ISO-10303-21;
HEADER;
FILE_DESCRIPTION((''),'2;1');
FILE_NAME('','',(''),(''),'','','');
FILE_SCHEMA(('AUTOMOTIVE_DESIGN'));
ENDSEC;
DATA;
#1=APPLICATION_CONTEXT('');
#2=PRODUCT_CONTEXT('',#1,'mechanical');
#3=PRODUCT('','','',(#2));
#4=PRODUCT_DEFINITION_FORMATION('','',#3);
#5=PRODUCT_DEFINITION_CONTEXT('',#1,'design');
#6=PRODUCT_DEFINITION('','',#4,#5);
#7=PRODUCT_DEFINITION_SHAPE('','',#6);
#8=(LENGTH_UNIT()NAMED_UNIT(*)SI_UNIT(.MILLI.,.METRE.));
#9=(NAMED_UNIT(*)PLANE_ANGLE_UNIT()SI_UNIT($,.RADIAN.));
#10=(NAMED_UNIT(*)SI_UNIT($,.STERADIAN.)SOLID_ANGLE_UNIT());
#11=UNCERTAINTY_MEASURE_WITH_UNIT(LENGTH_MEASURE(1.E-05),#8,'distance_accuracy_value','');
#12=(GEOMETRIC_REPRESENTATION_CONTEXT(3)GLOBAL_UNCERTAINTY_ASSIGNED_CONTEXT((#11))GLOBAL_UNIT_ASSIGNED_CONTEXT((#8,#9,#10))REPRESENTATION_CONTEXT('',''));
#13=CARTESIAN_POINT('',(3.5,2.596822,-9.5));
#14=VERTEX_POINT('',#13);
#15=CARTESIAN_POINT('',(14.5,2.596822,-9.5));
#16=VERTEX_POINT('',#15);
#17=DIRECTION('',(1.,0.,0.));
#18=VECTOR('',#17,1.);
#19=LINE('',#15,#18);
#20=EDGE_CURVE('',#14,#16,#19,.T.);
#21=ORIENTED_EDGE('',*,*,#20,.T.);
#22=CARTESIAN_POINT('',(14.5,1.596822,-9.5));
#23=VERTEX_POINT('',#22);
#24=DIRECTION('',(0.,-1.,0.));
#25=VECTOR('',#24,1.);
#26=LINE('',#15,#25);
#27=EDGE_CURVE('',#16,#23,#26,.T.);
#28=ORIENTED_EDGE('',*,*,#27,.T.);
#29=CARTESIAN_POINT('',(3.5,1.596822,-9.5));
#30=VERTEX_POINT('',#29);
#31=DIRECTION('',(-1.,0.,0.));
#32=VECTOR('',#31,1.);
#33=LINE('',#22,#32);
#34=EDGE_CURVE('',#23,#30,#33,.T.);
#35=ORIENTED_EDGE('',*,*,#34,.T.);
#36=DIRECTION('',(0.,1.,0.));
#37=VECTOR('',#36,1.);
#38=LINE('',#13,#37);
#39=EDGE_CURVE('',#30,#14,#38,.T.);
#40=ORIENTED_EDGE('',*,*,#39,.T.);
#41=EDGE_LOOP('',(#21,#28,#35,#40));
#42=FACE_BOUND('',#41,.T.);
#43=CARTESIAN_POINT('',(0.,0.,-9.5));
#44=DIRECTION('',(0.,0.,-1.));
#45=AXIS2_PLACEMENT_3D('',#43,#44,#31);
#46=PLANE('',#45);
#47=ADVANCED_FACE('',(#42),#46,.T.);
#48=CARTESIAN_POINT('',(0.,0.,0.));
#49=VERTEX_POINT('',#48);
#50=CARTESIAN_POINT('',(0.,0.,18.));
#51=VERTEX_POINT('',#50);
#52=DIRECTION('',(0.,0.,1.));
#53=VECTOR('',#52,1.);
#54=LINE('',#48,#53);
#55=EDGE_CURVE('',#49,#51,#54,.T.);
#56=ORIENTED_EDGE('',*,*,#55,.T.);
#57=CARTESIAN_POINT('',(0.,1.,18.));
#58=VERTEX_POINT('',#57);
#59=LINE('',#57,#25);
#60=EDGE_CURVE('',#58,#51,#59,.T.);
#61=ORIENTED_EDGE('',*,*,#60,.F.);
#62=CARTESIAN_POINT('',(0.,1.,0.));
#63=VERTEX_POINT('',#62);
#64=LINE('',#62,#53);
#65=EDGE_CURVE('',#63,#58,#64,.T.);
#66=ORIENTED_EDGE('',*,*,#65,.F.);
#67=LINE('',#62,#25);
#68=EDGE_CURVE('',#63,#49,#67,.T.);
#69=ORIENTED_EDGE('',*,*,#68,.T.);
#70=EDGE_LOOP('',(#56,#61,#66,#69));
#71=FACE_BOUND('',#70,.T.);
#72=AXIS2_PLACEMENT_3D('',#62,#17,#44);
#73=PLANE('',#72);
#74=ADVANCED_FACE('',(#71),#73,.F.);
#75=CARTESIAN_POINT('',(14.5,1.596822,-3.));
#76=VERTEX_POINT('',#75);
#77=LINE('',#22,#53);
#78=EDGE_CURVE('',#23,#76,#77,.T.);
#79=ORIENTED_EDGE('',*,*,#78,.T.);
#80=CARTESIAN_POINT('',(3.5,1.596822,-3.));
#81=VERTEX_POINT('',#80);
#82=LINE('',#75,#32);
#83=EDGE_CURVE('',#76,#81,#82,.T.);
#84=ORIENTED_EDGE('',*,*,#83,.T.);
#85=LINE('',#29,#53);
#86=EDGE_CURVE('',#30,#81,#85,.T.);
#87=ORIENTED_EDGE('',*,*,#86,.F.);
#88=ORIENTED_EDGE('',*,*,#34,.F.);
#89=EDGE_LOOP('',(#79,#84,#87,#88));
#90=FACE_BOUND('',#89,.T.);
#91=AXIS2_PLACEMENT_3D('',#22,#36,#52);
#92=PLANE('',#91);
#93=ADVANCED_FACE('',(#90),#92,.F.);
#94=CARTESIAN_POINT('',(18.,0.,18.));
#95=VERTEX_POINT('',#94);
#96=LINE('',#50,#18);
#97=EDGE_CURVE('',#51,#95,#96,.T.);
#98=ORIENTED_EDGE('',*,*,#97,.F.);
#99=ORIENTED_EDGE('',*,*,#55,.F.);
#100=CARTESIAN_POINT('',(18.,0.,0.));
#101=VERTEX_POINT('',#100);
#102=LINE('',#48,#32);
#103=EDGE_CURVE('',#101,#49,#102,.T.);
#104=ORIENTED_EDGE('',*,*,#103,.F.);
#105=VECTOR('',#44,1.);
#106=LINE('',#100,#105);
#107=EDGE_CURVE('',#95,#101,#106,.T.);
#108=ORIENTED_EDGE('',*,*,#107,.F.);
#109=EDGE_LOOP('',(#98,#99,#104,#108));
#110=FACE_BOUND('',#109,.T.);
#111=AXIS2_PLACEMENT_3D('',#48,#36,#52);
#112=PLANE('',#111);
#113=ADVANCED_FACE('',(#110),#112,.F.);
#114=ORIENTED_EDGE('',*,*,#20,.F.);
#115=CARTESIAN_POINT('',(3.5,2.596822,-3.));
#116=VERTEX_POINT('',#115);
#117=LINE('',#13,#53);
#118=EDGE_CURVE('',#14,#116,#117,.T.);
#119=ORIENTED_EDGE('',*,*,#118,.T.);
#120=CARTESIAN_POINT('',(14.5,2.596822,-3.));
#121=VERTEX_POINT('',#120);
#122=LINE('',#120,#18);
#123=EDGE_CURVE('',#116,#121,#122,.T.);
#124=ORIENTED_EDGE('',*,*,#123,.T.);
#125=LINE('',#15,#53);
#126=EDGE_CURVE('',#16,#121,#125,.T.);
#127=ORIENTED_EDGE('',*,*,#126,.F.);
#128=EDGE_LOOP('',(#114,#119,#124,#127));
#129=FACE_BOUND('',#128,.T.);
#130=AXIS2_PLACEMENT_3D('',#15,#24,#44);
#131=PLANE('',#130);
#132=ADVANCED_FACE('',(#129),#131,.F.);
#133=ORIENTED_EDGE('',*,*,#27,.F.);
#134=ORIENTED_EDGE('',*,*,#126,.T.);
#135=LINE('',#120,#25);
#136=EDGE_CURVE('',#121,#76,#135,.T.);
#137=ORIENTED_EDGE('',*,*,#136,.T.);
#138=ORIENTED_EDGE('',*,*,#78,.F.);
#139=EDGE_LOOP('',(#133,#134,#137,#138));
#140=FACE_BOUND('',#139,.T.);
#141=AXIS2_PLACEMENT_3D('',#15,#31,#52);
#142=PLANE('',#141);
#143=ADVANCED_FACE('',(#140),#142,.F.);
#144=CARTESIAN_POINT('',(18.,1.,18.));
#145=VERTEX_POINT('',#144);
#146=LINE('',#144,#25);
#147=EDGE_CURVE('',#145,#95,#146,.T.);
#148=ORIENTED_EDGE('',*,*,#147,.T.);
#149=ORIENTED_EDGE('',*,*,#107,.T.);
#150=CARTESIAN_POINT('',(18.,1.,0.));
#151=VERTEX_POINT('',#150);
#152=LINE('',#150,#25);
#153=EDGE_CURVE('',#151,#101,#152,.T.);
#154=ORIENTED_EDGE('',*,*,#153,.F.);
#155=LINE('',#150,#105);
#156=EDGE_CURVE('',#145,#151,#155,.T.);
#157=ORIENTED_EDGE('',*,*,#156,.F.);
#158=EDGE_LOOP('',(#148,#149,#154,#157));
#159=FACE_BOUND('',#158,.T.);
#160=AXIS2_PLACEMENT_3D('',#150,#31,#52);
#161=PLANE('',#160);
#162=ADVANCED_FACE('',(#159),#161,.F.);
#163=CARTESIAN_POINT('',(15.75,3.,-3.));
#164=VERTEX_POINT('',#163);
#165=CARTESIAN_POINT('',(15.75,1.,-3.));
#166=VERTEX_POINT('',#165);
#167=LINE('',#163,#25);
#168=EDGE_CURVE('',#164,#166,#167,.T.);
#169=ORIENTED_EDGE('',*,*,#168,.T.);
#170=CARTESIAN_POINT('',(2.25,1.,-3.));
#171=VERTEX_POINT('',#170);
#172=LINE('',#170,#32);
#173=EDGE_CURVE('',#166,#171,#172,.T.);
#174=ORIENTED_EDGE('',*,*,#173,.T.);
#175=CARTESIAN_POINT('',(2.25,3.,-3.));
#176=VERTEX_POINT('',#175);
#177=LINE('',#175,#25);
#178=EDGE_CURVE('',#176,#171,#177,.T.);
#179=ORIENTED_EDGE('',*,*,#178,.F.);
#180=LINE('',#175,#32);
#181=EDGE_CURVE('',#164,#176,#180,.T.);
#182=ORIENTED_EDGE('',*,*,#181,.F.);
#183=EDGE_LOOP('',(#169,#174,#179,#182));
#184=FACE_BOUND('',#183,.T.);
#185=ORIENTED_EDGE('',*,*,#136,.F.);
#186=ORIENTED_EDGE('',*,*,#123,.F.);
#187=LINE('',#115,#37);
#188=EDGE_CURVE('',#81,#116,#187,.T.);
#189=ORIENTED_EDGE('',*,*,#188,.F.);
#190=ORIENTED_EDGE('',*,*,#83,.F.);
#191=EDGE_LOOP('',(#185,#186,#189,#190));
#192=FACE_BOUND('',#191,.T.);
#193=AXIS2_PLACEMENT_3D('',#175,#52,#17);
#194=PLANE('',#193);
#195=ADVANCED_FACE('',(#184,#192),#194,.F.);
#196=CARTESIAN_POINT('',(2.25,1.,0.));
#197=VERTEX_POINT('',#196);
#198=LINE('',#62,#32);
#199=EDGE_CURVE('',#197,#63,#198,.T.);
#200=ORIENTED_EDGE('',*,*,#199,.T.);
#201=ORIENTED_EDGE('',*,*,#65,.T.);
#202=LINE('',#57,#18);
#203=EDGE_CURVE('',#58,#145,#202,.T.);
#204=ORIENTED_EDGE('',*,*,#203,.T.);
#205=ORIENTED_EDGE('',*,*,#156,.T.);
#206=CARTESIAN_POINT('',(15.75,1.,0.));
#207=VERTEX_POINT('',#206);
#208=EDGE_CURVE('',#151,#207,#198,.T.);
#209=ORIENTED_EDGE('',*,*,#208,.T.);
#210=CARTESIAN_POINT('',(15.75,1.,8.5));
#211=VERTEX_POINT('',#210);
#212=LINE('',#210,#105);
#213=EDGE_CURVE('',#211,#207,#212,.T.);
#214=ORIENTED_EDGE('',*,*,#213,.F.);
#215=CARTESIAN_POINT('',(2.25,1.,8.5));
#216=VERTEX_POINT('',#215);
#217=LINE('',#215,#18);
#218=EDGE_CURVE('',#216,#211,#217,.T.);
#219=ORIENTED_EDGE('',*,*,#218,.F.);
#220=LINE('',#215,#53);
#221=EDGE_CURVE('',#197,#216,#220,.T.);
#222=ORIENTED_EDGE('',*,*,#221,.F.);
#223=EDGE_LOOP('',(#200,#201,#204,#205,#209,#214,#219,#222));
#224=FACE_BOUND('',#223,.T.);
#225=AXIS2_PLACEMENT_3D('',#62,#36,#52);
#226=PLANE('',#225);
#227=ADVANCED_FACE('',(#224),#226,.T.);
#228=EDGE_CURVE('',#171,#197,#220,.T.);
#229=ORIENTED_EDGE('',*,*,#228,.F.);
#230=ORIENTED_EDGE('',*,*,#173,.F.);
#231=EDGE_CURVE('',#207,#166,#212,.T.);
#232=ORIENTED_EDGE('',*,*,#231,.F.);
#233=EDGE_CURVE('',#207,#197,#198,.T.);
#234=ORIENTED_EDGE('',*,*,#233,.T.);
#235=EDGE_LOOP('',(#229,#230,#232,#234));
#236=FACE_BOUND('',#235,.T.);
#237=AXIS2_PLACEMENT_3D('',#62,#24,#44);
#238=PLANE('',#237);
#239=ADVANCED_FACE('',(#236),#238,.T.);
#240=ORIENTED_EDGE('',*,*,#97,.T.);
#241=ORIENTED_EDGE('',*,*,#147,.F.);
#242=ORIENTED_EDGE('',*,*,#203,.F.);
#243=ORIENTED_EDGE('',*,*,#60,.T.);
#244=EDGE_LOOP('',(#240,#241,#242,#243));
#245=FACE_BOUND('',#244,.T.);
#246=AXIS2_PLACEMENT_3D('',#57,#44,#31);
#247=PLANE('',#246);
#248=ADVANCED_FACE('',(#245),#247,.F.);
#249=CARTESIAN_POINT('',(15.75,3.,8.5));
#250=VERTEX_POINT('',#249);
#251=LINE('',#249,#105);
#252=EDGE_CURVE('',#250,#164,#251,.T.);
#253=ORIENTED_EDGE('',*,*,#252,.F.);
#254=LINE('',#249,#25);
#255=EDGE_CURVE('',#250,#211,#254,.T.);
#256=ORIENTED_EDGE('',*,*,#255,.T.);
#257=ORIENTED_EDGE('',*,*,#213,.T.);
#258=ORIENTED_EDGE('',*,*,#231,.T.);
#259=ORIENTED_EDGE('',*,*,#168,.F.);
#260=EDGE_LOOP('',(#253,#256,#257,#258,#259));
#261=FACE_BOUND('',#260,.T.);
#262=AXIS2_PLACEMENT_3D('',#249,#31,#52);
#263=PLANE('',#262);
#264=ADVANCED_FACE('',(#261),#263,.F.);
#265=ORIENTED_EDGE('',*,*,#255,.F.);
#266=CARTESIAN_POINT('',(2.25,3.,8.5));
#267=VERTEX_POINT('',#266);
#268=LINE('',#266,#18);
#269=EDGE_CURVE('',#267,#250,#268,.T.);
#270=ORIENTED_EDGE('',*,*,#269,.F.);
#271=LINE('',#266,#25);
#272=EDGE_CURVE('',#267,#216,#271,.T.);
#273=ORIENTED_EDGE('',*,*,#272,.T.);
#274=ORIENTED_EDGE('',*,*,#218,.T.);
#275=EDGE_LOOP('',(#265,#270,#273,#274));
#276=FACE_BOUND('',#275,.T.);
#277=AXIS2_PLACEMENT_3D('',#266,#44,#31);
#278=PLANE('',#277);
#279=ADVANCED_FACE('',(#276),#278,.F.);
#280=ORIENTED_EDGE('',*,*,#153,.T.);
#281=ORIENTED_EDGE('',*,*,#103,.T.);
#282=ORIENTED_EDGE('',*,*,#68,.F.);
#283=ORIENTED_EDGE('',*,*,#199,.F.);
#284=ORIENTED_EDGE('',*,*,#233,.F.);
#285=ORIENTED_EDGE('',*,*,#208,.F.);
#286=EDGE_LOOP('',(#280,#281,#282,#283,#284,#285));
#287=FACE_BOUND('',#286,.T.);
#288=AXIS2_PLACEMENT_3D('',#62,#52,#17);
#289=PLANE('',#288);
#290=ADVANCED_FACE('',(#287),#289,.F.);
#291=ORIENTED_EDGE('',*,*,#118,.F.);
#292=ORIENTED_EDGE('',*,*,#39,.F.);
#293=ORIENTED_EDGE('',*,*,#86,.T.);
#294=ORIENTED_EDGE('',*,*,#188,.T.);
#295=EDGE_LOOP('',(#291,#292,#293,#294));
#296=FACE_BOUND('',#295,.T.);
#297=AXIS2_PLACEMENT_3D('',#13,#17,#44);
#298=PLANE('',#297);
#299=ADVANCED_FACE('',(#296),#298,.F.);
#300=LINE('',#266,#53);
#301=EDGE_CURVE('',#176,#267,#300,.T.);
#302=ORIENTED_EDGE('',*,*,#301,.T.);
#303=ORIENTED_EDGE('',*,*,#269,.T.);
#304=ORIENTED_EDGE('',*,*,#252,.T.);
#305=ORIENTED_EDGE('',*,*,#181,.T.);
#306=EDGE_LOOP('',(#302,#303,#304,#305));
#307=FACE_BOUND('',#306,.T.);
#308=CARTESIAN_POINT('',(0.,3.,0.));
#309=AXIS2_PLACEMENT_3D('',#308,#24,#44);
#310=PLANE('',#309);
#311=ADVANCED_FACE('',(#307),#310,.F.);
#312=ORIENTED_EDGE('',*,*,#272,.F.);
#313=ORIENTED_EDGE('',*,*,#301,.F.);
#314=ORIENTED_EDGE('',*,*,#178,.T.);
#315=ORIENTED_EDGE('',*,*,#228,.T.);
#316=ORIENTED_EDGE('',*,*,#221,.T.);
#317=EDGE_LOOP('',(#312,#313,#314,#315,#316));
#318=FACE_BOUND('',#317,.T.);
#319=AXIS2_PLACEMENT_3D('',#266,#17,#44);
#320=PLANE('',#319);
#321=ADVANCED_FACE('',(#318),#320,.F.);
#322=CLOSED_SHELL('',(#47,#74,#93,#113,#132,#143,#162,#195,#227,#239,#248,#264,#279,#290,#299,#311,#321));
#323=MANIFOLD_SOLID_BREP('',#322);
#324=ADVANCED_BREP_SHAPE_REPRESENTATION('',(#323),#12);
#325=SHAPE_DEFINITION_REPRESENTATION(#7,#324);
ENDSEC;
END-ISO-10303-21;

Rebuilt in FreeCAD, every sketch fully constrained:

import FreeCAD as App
import Part
import Sketcher


def add_polygon(sketch, points):
    """Adds a closed chain of lines whose ends are joined by coincident constraints."""
    first, n = sketch.GeometryCount, len(points)
    for a, b in zip(points, points[1:] + points[:1]):
        sketch.addGeometry(Part.LineSegment(App.Vector(*a, 0), App.Vector(*b, 0)), False)
    for i in range(n):
        sketch.addConstraint(Sketcher.Constraint("Coincident", first + i, 2, first + (i + 1) % n, 1))

doc = App.newDocument("Part")
body = doc.addObject("PartDesign::Body", "Body")

# Sketch on XZ plane
sketch1 = doc.addObject("Sketcher::SketchObject", "Sketch")
body.addObject(sketch1)
sketch1.AttachmentSupport = (doc.XZ_Plane, [""])
sketch1.MapMode = "FlatFace"
add_polygon(sketch1, [(0, 0), (0, 18), (18, 18), (18, 0)])  # lines 0-3
sketch1.addConstraint([
    Sketcher.Constraint("Vertical", 0),
    Sketcher.Constraint("Horizontal", 1),
    Sketcher.Constraint("Vertical", 2),
    Sketcher.Constraint("Horizontal", 3),
    Sketcher.Constraint("Coincident", 3, 2, -1, 1),
    Sketcher.Constraint("Equal", 3, 0),
    Sketcher.Constraint("DistanceX", 1, 1, 1, 2, 18.0),
])
pad1 = doc.addObject("PartDesign::Pad", "Pad")
body.addObject(pad1)
pad1.Profile = sketch1
pad1.Length = 1
pad1.Reversed = True

# Sketch on XZ plane
sketch2 = doc.addObject("Sketcher::SketchObject", "Sketch001")
body.addObject(sketch2)
sketch2.AttachmentSupport = (doc.XZ_Plane, [""])
sketch2.MapMode = "FlatFace"
sketch2.AttachmentOffset = App.Placement(App.Vector(0, 0, -1), App.Rotation())
add_polygon(sketch2, [(2.25, -3), (2.25, 8.5), (15.75, 8.5), (15.75, -3)])  # lines 0-3
sketch2.addConstraint([
    Sketcher.Constraint("Vertical", 0),
    Sketcher.Constraint("Horizontal", 1),
    Sketcher.Constraint("Vertical", 2),
    Sketcher.Constraint("Horizontal", 3),
    Sketcher.Constraint("DistanceX", 1, 1, 1, 2, 13.5),
    Sketcher.Constraint("DistanceY", 0, 1, 0, 2, 11.5),
    Sketcher.Constraint("DistanceY", 2, 2, -1, 1, 3.0),
    Sketcher.Constraint("DistanceX", -1, 1, 0, 2, 2.25),
])
pad2 = doc.addObject("PartDesign::Pad", "Pad001")
body.addObject(pad2)
pad2.Profile = sketch2
pad2.Length = 2
pad2.Reversed = True

# Sketch on XY plane
sketch3 = doc.addObject("Sketcher::SketchObject", "Sketch002")
body.addObject(sketch3)
sketch3.AttachmentSupport = (doc.XY_Plane, [""])
sketch3.MapMode = "FlatFace"
sketch3.AttachmentOffset = App.Placement(App.Vector(0, 0, -3), App.Rotation())
add_polygon(sketch3, [(14.5, 2.596822), (14.5, 1.596822), (3.5, 1.596822), (3.5, 2.596822)])  # lines 0-3
sketch3.addConstraint([
    Sketcher.Constraint("Vertical", 0),
    Sketcher.Constraint("Horizontal", 1),
    Sketcher.Constraint("Vertical", 2),
    Sketcher.Constraint("Horizontal", 3),
    Sketcher.Constraint("DistanceX", 1, 2, 1, 1, 11.0),
    Sketcher.Constraint("DistanceY", 0, 2, 0, 1, 1.0),
    Sketcher.Constraint("DistanceX", -1, 1, 0, 2, 14.5),
    Sketcher.Constraint("DistanceY", -1, 1, 0, 2, 1.596822),
])
pad3 = doc.addObject("PartDesign::Pad", "Pad002")
body.addObject(pad3)
pad3.Profile = sketch3
pad3.Length = 6.5
pad3.Reversed = True

doc.recompute()
